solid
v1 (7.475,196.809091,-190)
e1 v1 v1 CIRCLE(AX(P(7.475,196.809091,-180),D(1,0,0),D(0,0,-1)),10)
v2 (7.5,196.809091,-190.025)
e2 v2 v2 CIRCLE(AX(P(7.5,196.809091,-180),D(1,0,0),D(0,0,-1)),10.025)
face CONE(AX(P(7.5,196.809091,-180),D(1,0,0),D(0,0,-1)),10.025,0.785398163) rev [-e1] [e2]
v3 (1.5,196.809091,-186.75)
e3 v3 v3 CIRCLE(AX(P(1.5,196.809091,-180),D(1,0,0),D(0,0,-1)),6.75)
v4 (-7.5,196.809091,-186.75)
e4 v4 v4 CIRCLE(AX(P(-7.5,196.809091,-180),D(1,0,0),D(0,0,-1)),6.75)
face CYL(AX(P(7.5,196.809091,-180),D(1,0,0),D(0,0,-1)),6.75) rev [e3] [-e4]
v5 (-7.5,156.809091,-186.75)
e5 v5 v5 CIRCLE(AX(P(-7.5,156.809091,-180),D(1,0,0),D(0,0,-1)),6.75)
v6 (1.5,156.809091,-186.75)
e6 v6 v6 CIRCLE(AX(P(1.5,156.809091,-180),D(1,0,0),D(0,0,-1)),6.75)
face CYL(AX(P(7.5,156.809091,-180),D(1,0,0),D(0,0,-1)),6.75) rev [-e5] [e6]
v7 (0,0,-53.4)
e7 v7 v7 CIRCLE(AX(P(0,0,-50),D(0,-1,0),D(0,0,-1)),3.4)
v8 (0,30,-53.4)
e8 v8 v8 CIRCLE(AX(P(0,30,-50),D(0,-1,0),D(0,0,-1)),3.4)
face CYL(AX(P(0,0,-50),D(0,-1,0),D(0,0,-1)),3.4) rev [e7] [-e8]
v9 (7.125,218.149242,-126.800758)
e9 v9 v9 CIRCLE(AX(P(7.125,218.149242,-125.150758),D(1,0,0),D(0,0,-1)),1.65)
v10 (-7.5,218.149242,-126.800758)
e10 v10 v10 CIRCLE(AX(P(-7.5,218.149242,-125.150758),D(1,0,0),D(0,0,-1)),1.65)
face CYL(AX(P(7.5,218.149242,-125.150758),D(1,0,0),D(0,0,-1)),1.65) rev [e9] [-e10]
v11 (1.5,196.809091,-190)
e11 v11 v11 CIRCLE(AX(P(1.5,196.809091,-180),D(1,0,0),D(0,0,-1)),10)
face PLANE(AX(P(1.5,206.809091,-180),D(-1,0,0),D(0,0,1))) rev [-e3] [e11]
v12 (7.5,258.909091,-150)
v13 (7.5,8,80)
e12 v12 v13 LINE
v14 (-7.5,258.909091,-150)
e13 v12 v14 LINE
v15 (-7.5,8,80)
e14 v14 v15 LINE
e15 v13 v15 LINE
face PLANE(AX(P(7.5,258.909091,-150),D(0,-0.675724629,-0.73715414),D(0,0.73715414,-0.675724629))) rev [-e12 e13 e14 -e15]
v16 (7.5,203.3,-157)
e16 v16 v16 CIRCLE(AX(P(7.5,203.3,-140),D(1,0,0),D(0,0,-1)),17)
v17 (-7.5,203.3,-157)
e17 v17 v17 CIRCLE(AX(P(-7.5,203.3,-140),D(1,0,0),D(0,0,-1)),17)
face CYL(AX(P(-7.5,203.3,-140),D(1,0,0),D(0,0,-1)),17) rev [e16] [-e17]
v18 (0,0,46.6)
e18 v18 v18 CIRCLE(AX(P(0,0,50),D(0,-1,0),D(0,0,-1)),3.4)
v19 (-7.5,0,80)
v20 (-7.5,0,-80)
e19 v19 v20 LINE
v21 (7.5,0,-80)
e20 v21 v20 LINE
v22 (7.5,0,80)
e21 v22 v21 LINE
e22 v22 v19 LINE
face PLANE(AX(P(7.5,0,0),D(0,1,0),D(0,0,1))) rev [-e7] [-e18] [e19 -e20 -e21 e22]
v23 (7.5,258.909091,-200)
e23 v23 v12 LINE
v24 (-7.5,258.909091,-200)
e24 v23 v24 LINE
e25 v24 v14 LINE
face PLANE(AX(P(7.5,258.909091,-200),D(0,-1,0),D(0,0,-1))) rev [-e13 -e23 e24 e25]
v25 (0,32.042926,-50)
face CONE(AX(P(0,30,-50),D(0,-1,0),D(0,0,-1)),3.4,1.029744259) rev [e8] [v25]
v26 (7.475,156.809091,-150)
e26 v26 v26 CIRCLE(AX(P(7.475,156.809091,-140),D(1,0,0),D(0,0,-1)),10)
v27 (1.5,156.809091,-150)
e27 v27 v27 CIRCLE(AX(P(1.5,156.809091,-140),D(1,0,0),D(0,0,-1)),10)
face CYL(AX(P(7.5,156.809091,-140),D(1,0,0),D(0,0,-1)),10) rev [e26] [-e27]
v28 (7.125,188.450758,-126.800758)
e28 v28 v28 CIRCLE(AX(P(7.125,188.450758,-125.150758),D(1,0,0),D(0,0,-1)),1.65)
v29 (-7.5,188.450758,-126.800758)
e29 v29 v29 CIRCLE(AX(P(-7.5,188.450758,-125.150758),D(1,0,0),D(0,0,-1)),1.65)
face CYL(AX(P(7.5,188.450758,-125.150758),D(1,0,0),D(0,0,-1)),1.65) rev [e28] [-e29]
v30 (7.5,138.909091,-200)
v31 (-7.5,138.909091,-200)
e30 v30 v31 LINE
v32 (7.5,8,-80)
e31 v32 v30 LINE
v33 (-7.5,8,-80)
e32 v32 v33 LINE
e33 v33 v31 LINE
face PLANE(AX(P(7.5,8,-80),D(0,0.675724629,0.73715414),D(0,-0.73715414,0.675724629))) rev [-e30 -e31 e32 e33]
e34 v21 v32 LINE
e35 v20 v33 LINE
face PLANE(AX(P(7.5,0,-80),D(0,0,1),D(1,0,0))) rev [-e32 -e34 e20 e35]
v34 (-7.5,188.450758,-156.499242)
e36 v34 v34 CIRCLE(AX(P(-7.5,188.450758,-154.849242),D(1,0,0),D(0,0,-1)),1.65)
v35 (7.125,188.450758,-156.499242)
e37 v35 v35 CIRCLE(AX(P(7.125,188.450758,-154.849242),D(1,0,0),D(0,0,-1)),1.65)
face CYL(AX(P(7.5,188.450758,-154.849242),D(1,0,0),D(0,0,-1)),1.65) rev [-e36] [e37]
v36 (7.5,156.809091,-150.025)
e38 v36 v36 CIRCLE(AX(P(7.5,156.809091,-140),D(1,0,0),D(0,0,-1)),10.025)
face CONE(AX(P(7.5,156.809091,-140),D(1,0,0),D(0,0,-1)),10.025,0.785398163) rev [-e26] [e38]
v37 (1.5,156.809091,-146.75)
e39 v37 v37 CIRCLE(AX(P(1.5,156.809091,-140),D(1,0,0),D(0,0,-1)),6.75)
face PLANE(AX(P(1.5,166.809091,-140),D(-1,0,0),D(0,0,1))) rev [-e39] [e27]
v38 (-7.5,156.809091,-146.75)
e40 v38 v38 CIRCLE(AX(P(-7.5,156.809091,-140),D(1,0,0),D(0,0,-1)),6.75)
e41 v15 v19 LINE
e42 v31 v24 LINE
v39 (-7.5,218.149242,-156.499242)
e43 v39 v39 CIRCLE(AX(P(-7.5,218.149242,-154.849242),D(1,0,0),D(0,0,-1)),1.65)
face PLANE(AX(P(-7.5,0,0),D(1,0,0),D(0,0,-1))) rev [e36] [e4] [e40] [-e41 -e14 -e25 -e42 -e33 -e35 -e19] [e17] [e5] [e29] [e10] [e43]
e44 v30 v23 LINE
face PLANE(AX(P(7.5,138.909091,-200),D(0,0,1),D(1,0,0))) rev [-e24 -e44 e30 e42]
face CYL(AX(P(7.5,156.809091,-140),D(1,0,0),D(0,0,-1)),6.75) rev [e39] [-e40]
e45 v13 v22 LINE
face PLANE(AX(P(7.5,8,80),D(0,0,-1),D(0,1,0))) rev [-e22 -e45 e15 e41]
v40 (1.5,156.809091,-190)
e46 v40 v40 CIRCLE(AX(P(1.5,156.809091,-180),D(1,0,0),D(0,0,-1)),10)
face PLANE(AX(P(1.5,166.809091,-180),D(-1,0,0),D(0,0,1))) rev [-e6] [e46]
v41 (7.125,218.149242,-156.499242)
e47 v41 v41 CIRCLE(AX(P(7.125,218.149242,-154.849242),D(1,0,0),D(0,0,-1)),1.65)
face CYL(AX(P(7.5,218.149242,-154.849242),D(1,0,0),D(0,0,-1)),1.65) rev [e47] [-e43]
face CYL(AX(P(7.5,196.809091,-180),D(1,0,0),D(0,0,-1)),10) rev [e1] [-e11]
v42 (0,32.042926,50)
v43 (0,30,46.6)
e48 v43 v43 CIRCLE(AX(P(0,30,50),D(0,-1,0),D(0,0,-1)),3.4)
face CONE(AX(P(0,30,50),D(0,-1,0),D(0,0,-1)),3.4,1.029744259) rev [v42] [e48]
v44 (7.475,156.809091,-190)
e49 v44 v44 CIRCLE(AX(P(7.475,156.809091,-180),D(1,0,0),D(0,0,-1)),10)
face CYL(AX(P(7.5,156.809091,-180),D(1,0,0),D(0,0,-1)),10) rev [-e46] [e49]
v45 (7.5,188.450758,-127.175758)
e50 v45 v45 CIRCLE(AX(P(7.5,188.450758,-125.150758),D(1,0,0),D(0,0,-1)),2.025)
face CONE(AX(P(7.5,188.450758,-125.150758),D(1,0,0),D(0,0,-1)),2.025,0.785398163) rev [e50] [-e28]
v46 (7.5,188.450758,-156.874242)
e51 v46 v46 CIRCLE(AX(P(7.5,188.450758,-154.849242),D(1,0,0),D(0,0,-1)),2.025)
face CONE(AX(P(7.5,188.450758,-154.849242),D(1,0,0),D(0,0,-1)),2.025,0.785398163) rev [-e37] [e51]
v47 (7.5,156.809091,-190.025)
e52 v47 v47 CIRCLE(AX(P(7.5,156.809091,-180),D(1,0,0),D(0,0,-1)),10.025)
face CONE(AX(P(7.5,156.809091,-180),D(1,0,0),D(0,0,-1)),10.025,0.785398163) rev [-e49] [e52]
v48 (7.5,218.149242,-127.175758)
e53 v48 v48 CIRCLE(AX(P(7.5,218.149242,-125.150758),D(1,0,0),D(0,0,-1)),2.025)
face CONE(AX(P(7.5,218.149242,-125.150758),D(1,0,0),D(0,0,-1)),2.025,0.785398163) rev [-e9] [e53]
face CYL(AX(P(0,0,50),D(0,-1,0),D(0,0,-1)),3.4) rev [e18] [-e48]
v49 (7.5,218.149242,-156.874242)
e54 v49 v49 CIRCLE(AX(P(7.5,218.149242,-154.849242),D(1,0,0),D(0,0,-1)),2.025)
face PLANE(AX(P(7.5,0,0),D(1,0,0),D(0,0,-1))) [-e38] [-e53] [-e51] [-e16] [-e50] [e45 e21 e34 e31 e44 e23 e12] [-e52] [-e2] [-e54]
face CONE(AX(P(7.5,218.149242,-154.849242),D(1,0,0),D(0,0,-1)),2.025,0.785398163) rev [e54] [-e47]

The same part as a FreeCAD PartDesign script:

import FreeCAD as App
import Part
import Sketcher
from FreeCAD import Vector
Q = App.Units.Quantity

doc = App.newDocument("Part")
body = doc.addObject("PartDesign::Body", "Body")

# Sketch on YZ plane
sketch1 = body.newObject("Sketcher::SketchObject", "Sketch")
sketch1.AttachmentSupport = (doc.getObject("YZ_Plane"), [""])
sketch1.MapMode = "FlatFace"
sketch1.addGeometry([
    Part.LineSegment(Vector(0, 80, 0), Vector(0, -80, 0)),  # 0
    Part.LineSegment(Vector(0, -80, 0), Vector(8, -80, 0)),  # 1
    Part.LineSegment(Vector(8, -80, 0), Vector(139, -200, 0)),  # 2
    Part.LineSegment(Vector(139, -200, 0), Vector(259, -200, 0)),  # 3
    Part.LineSegment(Vector(259, -200, 0), Vector(259, -150, 0)),  # 4
    Part.LineSegment(Vector(259, -150, 0), Vector(8, 80, 0)),  # 5
    Part.LineSegment(Vector(8, 80, 0), Vector(0, 80, 0)),  # 6
], False)
sketch1.addConstraint([
    Sketcher.Constraint("Coincident", 0, 2, 1, 1),
    Sketcher.Constraint("Coincident", 1, 2, 2, 1),
    Sketcher.Constraint("Coincident", 2, 2, 3, 1),
    Sketcher.Constraint("Coincident", 3, 2, 4, 1),
    Sketcher.Constraint("Coincident", 4, 2, 5, 1),
    Sketcher.Constraint("Coincident", 5, 2, 6, 1),
    Sketcher.Constraint("Coincident", 6, 2, 0, 1),
    Sketcher.Constraint("Vertical", 0),
    Sketcher.Constraint("Horizontal", 1),
    Sketcher.Constraint("Horizontal", 3),
    Sketcher.Constraint("Vertical", 4),
    Sketcher.Constraint("Horizontal", 6),
    Sketcher.Constraint("Symmetric", 0, 2, 6, 2, -1, 1),
    Sketcher.Constraint("Parallel", 2, 5),
    Sketcher.Constraint("Vertical", 1, 2, 5, 2),
    Sketcher.Constraint("DistanceX", 1, 1, 1, 2, 8.0),
    Sketcher.Constraint("DistanceX", 3, 1, 3, 2, 120.0),
    Sketcher.Constraint("DistanceY", 0, 2, 0, 1, 160.0),
    Sketcher.Constraint("DistanceY", 4, 1, 4, 2, 50.0),
    Sketcher.Constraint("DistanceY", 2, 2, -1, 1, 200.0),
])
pad1 = body.newObject("PartDesign::Pad", "Pad")
pad1.Profile = sketch1
pad1.Length = 15
pad1.Midplane = True

# Sketch on XZ plane
sketch2 = body.newObject("Sketcher::SketchObject", "Sketch001")
sketch2.AttachmentSupport = (doc.getObject("XZ_Plane"), [""])
sketch2.MapMode = "FlatFace"
sketch2.addGeometry([
    Part.Circle(Vector(0, 50, 0), Vector(0, 0, 1), 3.4),
    Part.Circle(Vector(0, -50, 0), Vector(0, 0, 1), 3.4),
], False)
sketch2.addConstraint([
    Sketcher.Constraint("Equal", 0, 1),
    Sketcher.Constraint("Symmetric", 0, 3, 1, 3, -1, 1),
    Sketcher.Constraint("PointOnObject", 0, 3, -2),
    Sketcher.Constraint("Diameter", 0, 6.8),
    Sketcher.Constraint("DistanceY", -1, 1, 0, 3, 50.0),
])
doc.recompute()
hole = body.newObject("PartDesign::Hole", "Hole")
hole.Profile = sketch2
hole.ThreadType = "None"
hole.Diameter = 6.8
hole.DepthType = "Dimension"
hole.Depth = 30
hole.DrillPoint = "Angled"
hole.DrillPointAngle = 118

# Sketch on XZ plane
sketch3 = body.newObject("Sketcher::SketchObject", "Sketch002")
sketch3.AttachmentSupport = (doc.getObject("XZ_Plane"), [""])
sketch3.MapMode = "FlatFace"
sketch3.AttachmentOffset = App.Placement(Vector(0, 0, -196.809091), App.Rotation())
sketch3.addGeometry([
    Part.LineSegment(Vector(-7.5, -180, 0), Vector(7.5, -180, 0)),  # 0
    Part.LineSegment(Vector(7.5, -180, 0), Vector(7.5, -190.025, 0)),  # 1
    Part.LineSegment(Vector(7.5, -190.025, 0), Vector(7.475, -190, 0)),  # 2
    Part.LineSegment(Vector(7.475, -190, 0), Vector(1.5, -190, 0)),  # 3
    Part.LineSegment(Vector(1.5, -190, 0), Vector(1.5, -186.75, 0)),  # 4
    Part.LineSegment(Vector(1.5, -186.75, 0), Vector(-7.5, -186.75, 0)),  # 5
    Part.LineSegment(Vector(-7.5, -186.75, 0), Vector(-7.5, -180, 0)),  # 6
], False)
sketch3.addGeometry(Part.LineSegment(Vector(7.5, -180, 0), Vector(-7.5, -180, 0)), True)  # axis
sketch3.addConstraint([
    Sketcher.Constraint("Coincident", 0, 2, 1, 1),
    Sketcher.Constraint("Coincident", 1, 2, 2, 1),
    Sketcher.Constraint("Coincident", 2, 2, 3, 1),
    Sketcher.Constraint("Coincident", 3, 2, 4, 1),
    Sketcher.Constraint("Coincident", 4, 2, 5, 1),
    Sketcher.Constraint("Coincident", 5, 2, 6, 1),
    Sketcher.Constraint("Coincident", 6, 2, 0, 1),
    Sketcher.Constraint("Horizontal", 0),
    Sketcher.Constraint("Vertical", 1),
    Sketcher.Constraint("Horizontal", 3),
    Sketcher.Constraint("Vertical", 4),
    Sketcher.Constraint("Horizontal", 5),
    Sketcher.Constraint("Vertical", 6),
    Sketcher.Constraint("Horizontal", 7),
    Sketcher.Constraint("Coincident", 7, 1, 0, 2),
    Sketcher.Constraint("Vertical", 5, 2, 7, 2),
    Sketcher.Constraint("DistanceX", 0, 1, 0, 2, 15.0),
    Sketcher.Constraint("DistanceX", 5, 2, 5, 1, 9.0),
    Sketcher.Constraint("Angle", 2, Q("135 deg")),
    Sketcher.Constraint("DistanceY", 0, 2, -1, 1, 180.0),
    Sketcher.Constraint("DistanceY", 2, 2, -1, 1, 190.0),
    Sketcher.Constraint("DistanceY", 4, 1, 4, 2, 3.25),
    Sketcher.Constraint("DistanceX", -1, 1, 0, 2, 7.5),
    Sketcher.Constraint("DistanceX", 3, 2, 3, 1, 5.975),
])
groove = body.newObject("PartDesign::Groove", "Groove")
groove.Profile = sketch3
groove.ReferenceAxis = (sketch3, ["Axis0"])
groove.Angle = 360
doc.recompute()

linearpattern = body.newObject("PartDesign::LinearPattern", "LinearPattern")
linearpattern.Originals = [groove]
linearpattern.Direction = (doc.getObject("Y_Axis"), [""])
linearpattern.Mode = "offset"
linearpattern.Offset = 40
linearpattern.Occurrences = 2
linearpattern.Reversed = True
body.Tip = linearpattern
doc.recompute()

datumline = body.newObject("PartDesign::Line", "DatumLine")
datumline.Placement = App.Placement(Vector(0, 0, 0), App.Rotation(Vector(0, 0, 1), Vector(0, -0.707106781, 0.707106781)))
linearpattern2 = body.newObject("PartDesign::LinearPattern", "LinearPattern001")
linearpattern2.Originals = [groove]
linearpattern2.Direction = (datumline, [""])
linearpattern2.Mode = "offset"
linearpattern2.Offset = 56.568542
linearpattern2.Occurrences = 2
body.Tip = linearpattern2

# Sketch on YZ plane
sketch4 = body.newObject("Sketcher::SketchObject", "Sketch003")
sketch4.AttachmentSupport = (doc.getObject("YZ_Plane"), [""])
sketch4.MapMode = "FlatFace"
sketch4.AttachmentOffset = App.Placement(Vector(0, 0, 7.5), App.Rotation())
sketch4.addGeometry(Part.Circle(Vector(203, -140, 0), Vector(0, 0, 1), 17), False)
sketch4.addConstraint([
    Sketcher.Constraint("Diameter", 0, 34.0),
    Sketcher.Constraint("DistanceY", 0, 3, -1, 1, 140.0),
    Sketcher.Constraint("DistanceX", -1, 1, 0, 3, 203.3),
])
pocket1 = body.newObject("PartDesign::Pocket", "Pocket")
pocket1.Profile = sketch4
pocket1.Type = "ThroughAll"

# Sketch on YZ plane
sketch5 = body.newObject("Sketcher::SketchObject", "Sketch004")
sketch5.AttachmentSupport = (doc.getObject("YZ_Plane"), [""])
sketch5.MapMode = "FlatFace"
sketch5.AttachmentOffset = App.Placement(Vector(0, 0, 7.5), App.Rotation())
sketch5.addGeometry([
    Part.Circle(Vector(218.1, -154.8, 0), Vector(0, 0, 1), 1.6),
    Part.Circle(Vector(188.5, -154.8, 0), Vector(0, 0, 1), 1.6),
    Part.Circle(Vector(188.5, -125.2, 0), Vector(0, 0, 1), 1.6),
    Part.Circle(Vector(218.1, -125.2, 0), Vector(0, 0, 1), 1.6),
], False)
sketch5.addConstraint([
    Sketcher.Constraint("Equal", 0, 1),
    Sketcher.Constraint("Equal", 1, 2),
    Sketcher.Constraint("Equal", 2, 3),
    Sketcher.Constraint("Horizontal", 0, 3, 1, 3),
    Sketcher.Constraint("Horizontal", 2, 3, 3, 3),
    Sketcher.Constraint("Vertical", 1, 3, 2, 3),
    Sketcher.Constraint("Vertical", 0, 3, 3, 3),
    Sketcher.Constraint("Diameter", 0, 3.3),
    Sketcher.Constraint("DistanceX", -1, 1, 0, 3, 218.149242),
    Sketcher.Constraint("DistanceY", 0, 3, -1, 1, 154.849242),
    Sketcher.Constraint("DistanceX", -1, 1, 1, 3, 188.450758),
    Sketcher.Constraint("DistanceY", 2, 3, -1, 1, 125.150758),
])
doc.recompute()
hole2 = body.newObject("PartDesign::Hole", "Hole001")
hole2.Profile = sketch5
hole2.ThreadType = "None"
hole2.Diameter = 3.3
hole2.DepthType = "ThroughAll"
hole2.HoleCutType = "Countersink"
hole2.HoleCutDiameter = 4.05
hole2.HoleCutCountersinkAngle = 90

doc.recompute()
